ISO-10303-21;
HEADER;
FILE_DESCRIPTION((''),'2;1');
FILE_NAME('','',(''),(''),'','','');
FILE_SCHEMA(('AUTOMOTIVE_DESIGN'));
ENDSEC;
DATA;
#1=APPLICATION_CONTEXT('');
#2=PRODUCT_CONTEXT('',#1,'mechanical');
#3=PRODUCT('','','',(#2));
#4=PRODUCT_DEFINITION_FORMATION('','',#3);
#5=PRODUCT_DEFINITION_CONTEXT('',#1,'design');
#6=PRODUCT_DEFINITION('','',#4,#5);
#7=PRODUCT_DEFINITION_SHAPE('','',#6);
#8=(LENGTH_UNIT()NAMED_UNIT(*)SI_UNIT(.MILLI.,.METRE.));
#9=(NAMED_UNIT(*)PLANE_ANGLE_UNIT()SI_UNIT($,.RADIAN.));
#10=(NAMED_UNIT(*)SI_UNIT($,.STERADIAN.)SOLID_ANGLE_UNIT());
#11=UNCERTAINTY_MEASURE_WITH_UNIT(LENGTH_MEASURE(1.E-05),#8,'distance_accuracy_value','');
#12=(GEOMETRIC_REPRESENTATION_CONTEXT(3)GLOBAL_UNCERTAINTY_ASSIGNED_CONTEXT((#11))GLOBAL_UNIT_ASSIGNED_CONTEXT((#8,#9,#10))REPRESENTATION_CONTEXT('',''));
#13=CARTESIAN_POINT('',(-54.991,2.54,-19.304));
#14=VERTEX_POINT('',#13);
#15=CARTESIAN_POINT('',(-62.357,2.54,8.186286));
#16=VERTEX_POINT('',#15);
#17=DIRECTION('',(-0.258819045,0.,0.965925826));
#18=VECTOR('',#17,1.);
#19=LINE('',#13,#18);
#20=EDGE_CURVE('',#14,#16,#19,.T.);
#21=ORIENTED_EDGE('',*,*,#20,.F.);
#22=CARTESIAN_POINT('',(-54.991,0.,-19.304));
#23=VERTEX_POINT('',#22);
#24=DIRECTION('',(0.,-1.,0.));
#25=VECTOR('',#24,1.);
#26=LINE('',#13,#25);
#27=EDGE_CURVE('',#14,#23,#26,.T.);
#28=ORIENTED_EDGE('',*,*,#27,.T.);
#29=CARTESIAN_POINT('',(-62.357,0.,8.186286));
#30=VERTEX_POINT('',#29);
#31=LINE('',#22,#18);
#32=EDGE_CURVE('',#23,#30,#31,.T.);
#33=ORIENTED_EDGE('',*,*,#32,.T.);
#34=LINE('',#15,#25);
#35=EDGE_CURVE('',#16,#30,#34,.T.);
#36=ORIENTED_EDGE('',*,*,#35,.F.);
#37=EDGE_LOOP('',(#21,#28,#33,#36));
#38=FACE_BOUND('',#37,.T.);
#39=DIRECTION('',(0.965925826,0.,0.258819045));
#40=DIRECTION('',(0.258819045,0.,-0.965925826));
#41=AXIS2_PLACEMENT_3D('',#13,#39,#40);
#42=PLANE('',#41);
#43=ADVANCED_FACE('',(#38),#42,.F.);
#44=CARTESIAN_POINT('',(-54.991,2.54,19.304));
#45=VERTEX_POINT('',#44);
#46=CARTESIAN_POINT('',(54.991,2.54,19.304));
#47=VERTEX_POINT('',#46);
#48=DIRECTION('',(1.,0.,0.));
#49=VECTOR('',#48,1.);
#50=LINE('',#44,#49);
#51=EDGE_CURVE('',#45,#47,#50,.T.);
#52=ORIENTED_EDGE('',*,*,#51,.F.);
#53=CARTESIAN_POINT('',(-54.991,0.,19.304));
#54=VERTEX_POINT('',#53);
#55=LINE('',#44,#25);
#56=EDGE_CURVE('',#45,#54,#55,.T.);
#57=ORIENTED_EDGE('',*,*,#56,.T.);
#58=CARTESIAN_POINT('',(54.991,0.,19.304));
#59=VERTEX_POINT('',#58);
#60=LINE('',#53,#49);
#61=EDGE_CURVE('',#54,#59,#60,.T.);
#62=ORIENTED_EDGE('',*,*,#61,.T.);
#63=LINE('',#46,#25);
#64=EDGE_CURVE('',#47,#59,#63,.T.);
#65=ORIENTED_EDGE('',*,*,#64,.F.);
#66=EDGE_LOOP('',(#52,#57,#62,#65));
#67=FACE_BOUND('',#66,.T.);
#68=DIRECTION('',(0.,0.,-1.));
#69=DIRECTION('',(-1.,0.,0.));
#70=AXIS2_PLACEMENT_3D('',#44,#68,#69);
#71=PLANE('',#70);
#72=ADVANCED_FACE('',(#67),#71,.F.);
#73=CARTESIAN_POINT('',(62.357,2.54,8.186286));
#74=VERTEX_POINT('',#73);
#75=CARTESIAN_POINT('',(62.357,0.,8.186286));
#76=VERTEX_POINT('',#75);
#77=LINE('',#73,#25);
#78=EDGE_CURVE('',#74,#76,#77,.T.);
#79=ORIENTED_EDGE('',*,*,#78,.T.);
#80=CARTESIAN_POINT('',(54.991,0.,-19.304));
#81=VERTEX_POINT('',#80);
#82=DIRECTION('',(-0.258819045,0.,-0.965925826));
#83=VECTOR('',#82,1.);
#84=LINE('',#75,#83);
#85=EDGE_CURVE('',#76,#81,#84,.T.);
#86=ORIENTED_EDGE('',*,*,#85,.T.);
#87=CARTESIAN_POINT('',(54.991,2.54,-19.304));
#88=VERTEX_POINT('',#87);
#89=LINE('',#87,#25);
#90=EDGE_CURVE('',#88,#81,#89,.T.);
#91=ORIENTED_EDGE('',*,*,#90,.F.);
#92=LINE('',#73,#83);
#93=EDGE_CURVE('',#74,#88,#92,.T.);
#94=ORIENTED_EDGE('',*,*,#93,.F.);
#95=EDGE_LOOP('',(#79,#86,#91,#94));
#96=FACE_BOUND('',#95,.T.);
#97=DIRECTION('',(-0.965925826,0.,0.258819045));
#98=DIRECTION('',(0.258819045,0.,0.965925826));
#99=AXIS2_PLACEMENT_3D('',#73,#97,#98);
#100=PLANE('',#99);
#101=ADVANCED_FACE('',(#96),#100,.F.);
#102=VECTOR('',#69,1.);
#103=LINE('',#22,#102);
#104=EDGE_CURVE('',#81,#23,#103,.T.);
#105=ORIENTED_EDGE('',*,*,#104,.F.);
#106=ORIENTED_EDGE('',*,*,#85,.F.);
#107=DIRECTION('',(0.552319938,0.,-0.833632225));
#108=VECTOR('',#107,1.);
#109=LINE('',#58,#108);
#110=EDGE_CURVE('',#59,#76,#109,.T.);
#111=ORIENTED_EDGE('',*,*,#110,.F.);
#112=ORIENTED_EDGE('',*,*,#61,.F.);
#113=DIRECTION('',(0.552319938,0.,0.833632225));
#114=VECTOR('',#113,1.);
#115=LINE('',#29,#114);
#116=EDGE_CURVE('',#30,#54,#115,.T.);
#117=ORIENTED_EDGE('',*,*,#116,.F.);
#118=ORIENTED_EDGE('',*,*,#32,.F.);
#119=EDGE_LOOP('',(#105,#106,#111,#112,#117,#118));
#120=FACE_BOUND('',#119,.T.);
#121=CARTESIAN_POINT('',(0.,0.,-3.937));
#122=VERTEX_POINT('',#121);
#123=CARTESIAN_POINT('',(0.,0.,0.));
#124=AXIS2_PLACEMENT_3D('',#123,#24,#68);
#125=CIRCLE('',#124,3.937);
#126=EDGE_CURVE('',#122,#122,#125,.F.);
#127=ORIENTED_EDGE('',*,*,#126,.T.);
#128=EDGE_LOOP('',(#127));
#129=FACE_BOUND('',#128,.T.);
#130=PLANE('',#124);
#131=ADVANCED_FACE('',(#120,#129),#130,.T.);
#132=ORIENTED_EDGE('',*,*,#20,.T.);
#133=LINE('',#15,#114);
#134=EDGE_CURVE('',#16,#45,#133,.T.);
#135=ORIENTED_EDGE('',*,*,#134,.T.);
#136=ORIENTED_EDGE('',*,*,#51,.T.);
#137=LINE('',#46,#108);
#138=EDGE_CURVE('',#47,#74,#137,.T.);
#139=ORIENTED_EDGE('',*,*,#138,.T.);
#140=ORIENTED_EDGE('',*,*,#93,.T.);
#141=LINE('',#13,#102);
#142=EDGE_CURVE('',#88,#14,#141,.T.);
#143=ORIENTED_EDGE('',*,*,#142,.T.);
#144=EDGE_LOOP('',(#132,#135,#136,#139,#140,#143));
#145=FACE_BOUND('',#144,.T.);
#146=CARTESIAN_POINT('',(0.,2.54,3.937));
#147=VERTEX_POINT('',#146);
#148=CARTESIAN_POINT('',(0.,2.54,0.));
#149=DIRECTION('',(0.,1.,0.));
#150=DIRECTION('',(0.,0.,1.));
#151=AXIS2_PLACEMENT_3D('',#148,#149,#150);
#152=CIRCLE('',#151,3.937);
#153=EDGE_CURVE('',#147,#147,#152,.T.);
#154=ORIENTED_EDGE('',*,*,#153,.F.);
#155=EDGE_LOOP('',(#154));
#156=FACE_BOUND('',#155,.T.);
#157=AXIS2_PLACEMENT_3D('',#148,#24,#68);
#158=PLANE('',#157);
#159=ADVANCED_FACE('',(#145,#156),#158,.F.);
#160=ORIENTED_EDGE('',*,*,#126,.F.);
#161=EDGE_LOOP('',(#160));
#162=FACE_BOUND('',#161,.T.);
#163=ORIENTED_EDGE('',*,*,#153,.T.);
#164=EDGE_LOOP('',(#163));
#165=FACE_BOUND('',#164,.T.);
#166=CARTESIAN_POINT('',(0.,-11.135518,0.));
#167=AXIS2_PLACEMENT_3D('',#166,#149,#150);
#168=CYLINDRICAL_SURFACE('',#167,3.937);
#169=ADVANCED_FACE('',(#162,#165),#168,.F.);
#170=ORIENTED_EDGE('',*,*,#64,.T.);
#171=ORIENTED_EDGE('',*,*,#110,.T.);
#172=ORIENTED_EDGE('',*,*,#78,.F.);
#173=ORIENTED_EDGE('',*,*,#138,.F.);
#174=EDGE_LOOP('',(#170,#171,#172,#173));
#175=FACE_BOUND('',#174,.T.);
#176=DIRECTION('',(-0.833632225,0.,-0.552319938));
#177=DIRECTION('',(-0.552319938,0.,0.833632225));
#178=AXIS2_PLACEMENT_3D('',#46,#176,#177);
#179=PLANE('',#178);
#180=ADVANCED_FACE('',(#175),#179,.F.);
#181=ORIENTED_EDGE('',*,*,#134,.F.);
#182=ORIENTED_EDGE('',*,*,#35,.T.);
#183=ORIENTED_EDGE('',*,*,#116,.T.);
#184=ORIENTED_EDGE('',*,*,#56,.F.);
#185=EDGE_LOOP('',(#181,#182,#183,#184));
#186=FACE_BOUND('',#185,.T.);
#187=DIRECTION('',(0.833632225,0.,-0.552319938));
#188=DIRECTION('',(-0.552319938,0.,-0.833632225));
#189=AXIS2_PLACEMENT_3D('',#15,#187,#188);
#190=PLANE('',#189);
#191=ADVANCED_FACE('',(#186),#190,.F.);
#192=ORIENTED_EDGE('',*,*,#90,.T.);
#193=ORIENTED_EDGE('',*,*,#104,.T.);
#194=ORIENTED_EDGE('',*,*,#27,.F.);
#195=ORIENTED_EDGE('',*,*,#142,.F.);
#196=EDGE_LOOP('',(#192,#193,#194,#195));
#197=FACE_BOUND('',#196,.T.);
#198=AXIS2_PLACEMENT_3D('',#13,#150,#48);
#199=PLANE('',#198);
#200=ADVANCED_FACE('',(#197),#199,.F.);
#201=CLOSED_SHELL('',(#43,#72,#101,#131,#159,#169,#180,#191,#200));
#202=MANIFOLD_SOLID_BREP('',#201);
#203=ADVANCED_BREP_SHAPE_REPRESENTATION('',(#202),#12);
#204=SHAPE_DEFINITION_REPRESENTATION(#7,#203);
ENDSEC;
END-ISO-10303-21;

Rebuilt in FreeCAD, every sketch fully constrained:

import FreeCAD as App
import Part
import Sketcher

V = App.Vector
Q = App.Units.Quantity


def add_polygon(sketch, points):
    """Adds a closed chain of lines whose ends are joined by coincident constraints."""
    first, n = sketch.GeometryCount, len(points)
    for a, b in zip(points, points[1:] + points[:1]):
        sketch.addGeometry(Part.LineSegment(App.Vector(*a, 0), App.Vector(*b, 0)), False)
    for i in range(n):
        sketch.addConstraint(Sketcher.Constraint("Coincident", first + i, 2, first + (i + 1) % n, 1))

doc = App.newDocument("Part")
body = doc.addObject("PartDesign::Body", "Body")

sketch1 = body.newObject("Sketcher::SketchObject", "Sketch")
sketch1.AttachmentSupport = (doc.getObject("XZ_Plane"), [""])
sketch1.MapMode = "FlatFace"
add_polygon(sketch1, [(-55, -19), (-62, 8), (-55, 19), (55, 19), (62, 8), (55, -19)])
sketch1.addConstraint([
    Sketcher.Constraint("Horizontal", 2),
    Sketcher.Constraint("Horizontal", 5),
    Sketcher.Constraint("Symmetric", 1, 2, 4, 2, -1, 1),
    Sketcher.Constraint("Symmetric", 0, 2, 3, 2, -2),
    Sketcher.Constraint("Vertical", 2, 2, 4, 2),
    Sketcher.Constraint("Vertical", 1, 2, 5, 2),
    Sketcher.Constraint("Angle", 0, Q("105 deg")),
    Sketcher.Constraint("DistanceX", 2, 1, 2, 2, Q("4.33 in")),
    Sketcher.Constraint("DistanceY", -1, 1, 1, 2, Q("0.76 in")),
    Sketcher.Constraint("DistanceX", 0, 2, 1, 2, Q("0.29 in")),
])
pad1 = body.newObject("PartDesign::Pad", "Pad")
pad1.Profile = sketch1
pad1.Length = Q("0.1 in")
pad1.Reversed = True

sketch2 = body.newObject("Sketcher::SketchObject", "Sketch001")
sketch2.AttachmentSupport = (doc.getObject("XZ_Plane"), [""])
sketch2.MapMode = "FlatFace"
sketch2.AttachmentOffset = App.Placement(V(0, 0, -0.1 * 25.4), App.Rotation())
sketch2.addGeometry(Part.Circle(V(0, 0, 0), V(0, 0, 1), 3.9), False)
sketch2.addConstraint([
    Sketcher.Constraint("Coincident", 0, 3, -1, 1),
    Sketcher.Constraint("Diameter", 0, Q("0.31 in")),
])
pocket1 = body.newObject("PartDesign::Pocket", "Pocket")
pocket1.Profile = sketch2
pocket1.Length = Q("0.1 in")
pocket1.Reversed = True

doc.recompute()
